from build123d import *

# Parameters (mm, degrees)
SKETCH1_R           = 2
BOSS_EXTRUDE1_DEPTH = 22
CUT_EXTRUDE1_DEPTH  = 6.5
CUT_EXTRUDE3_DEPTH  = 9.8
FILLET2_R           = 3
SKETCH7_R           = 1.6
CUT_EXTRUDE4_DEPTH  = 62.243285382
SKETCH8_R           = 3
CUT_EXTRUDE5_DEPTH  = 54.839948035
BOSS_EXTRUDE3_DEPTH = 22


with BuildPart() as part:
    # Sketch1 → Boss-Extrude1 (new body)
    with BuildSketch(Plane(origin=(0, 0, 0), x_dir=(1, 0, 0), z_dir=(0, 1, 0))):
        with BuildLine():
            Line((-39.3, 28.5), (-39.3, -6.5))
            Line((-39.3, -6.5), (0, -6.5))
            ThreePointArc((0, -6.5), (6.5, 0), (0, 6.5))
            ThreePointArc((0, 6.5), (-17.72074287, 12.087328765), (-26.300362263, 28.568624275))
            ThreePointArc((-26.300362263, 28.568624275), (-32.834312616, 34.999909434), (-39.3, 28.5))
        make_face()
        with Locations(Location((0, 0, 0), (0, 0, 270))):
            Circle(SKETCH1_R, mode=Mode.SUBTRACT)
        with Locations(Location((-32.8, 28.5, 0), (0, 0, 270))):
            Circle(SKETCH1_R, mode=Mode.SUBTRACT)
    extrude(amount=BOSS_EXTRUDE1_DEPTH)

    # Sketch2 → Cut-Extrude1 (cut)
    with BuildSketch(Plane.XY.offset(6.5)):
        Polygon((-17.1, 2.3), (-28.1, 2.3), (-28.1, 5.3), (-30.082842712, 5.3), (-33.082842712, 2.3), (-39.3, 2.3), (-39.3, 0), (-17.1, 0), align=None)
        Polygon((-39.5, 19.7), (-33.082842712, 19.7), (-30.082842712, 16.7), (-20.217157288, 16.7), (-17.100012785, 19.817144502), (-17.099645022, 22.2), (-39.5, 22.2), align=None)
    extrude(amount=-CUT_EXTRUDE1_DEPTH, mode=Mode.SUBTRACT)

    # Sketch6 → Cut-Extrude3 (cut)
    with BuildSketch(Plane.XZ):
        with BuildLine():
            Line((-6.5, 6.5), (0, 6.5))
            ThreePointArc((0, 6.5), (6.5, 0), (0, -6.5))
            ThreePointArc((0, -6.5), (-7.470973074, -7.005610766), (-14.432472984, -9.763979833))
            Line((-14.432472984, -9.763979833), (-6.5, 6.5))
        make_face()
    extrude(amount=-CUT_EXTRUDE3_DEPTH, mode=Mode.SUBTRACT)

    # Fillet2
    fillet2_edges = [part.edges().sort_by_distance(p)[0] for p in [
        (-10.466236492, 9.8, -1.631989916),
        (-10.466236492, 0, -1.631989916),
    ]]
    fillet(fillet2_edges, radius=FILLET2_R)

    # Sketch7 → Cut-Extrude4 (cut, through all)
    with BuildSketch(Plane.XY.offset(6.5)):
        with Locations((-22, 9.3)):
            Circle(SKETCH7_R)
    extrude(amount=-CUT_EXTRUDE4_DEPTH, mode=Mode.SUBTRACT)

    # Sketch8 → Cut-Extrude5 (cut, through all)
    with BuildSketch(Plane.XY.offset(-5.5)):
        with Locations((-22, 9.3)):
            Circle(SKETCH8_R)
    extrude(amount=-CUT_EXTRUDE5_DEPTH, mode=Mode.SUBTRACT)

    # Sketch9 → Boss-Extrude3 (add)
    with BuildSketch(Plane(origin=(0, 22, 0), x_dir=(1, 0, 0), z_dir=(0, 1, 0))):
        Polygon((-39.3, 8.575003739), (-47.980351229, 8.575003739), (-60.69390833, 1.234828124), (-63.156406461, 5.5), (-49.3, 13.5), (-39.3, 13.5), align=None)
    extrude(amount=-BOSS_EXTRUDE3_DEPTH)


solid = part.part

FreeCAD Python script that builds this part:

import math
import FreeCAD as App
import Part
import Sketcher

V = App.Vector
Q = App.Units.Quantity


def edges_at(feature, points):
    """Names of the edges that pass closest to the given points."""
    edges = feature.Shape.Edges
    near = lambda p: min(range(len(edges)), key=lambda i: edges[i].distToShape(Part.Vertex(*p))[0])
    return sorted({f"Edge{near(p) + 1}" for p in points})

doc = App.newDocument("Part")
body = doc.addObject("PartDesign::Body", "Body")

# Sketch on XZ plane
sketch1 = body.newObject("Sketcher::SketchObject", "Sketch")
sketch1.AttachmentSupport = (doc.getObject("XZ_Plane"), [""])
sketch1.MapMode = "FlatFace"
sketch1.addGeometry([
    Part.LineSegment(V(-39.3, -28.5, 0), V(-39.3, 6.5, 0)),  # 0
    Part.LineSegment(V(-39.3, 6.5, 0), V(0, 6.5, 0)),  # 1
    Part.ArcOfCircle(Part.Circle(V(0, 0, 0), V(0, 0, 1), 6.5), math.radians(-90), math.radians(90)),  # 2
    Part.ArcOfCircle(Part.Circle(V(-2.115869, -30.684493, 0), V(0, 0, 1), 24.276874), math.radians(85), math.radians(175)),  # 3
    Part.ArcOfCircle(Part.Circle(V(-32.8, -28.5, 0), V(0, 0, 1), 6.5), math.radians(180), math.radians(359.395084)),  # 4
    Part.Circle(V(0, 0, 0), V(0, 0, 1), 2),  # 5
    Part.Circle(V(-32.8, -28.5, 0), V(0, 0, 1), 2),  # 6
], False)
sketch1.addConstraint([
    Sketcher.Constraint("Coincident", 0, 2, 1, 1),
    Sketcher.Constraint("Tangent", 1, 2, 2, 2),
    Sketcher.Constraint("Coincident", 2, 1, 3, 1),
    Sketcher.Constraint("Coincident", 3, 2, 4, 2),
    Sketcher.Constraint("Tangent", 4, 1, 0, 1),
    Sketcher.Constraint("Vertical", 0),
    Sketcher.Constraint("Horizontal", 1),
    Sketcher.Constraint("Coincident", 2, 3, -1, 1),
    Sketcher.Constraint("Coincident", 5, 3, -1, 1),
    Sketcher.Constraint("Coincident", 6, 3, 4, 3),
    Sketcher.Constraint("Equal", 2, 4),
    Sketcher.Constraint("Equal", 5, 6),
    Sketcher.Constraint("PointOnObject", 2, 1, -2),
    Sketcher.Constraint("Diameter", 5, 4.0),
    Sketcher.Constraint("Radius", 2, 6.5),
    Sketcher.Constraint("DistanceY", 0, 1, 0, 2, 35.0),
    Sketcher.Constraint("DistanceX", 1, 1, 1, 2, 39.3),
    Sketcher.Constraint("Radius", 3, 24.276874),
    Sketcher.Constraint("DistanceX", 3, 3, -1, 1, 2.115869),
])
pad1 = body.newObject("PartDesign::Pad", "Pad")
pad1.Profile = sketch1
pad1.Length = 22
pad1.Reversed = True

# Sketch on XY plane
sketch2 = body.newObject("Sketcher::SketchObject", "Sketch001")
sketch2.AttachmentSupport = (doc.getObject("XY_Plane"), [""])
sketch2.MapMode = "FlatFace"
sketch2.AttachmentOffset = App.Placement(V(0, 0, 6.5), App.Rotation())
sketch2.addGeometry([
    Part.LineSegment(V(-17.1, 2.3, 0), V(-28.1, 2.3, 0)),  # 0
    Part.LineSegment(V(-28.1, 2.3, 0), V(-28.1, 5.3, 0)),  # 1
    Part.LineSegment(V(-28.1, 5.3, 0), V(-30.082843, 5.3, 0)),  # 2
    Part.LineSegment(V(-30.082843, 5.3, 0), V(-33.082843, 2.3, 0)),  # 3
    Part.LineSegment(V(-33.082843, 2.3, 0), V(-39.3, 2.3, 0)),  # 4
    Part.LineSegment(V(-39.3, 2.3, 0), V(-39.3, 0, 0)),  # 5
    Part.LineSegment(V(-39.3, 0, 0), V(-17.1, 0, 0)),  # 6
    Part.LineSegment(V(-17.1, 0, 0), V(-17.1, 2.3, 0)),  # 7
    Part.LineSegment(V(-39.5, 19.7, 0), V(-33.082843, 19.7, 0)),  # 8
    Part.LineSegment(V(-33.082843, 19.7, 0), V(-30.082843, 16.7, 0)),  # 9
    Part.LineSegment(V(-30.082843, 16.7, 0), V(-20.217157, 16.7, 0)),  # 10
    Part.LineSegment(V(-20.217157, 16.7, 0), V(-17.100013, 19.817145, 0)),  # 11
    Part.LineSegment(V(-17.100013, 19.817145, 0), V(-17.099645, 22.2, 0)),  # 12
    Part.LineSegment(V(-17.099645, 22.2, 0), V(-39.5, 22.2, 0)),  # 13
    Part.LineSegment(V(-39.5, 22.2, 0), V(-39.5, 19.7, 0)),  # 14
], False)
sketch2.addConstraint([
    Sketcher.Constraint("Coincident", 0, 2, 1, 1),
    Sketcher.Constraint("Coincident", 1, 2, 2, 1),
    Sketcher.Constraint("Coincident", 2, 2, 3, 1),
    Sketcher.Constraint("Coincident", 3, 2, 4, 1),
    Sketcher.Constraint("Coincident", 4, 2, 5, 1),
    Sketcher.Constraint("Coincident", 5, 2, 6, 1),
    Sketcher.Constraint("Coincident", 6, 2, 7, 1),
    Sketcher.Constraint("Coincident", 7, 2, 0, 1),
    Sketcher.Constraint("Coincident", 8, 2, 9, 1),
    Sketcher.Constraint("Coincident", 9, 2, 10, 1),
    Sketcher.Constraint("Coincident", 10, 2, 11, 1),
    Sketcher.Constraint("Coincident", 11, 2, 12, 1),
    Sketcher.Constraint("Coincident", 12, 2, 13, 1),
    Sketcher.Constraint("Coincident", 13, 2, 14, 1),
    Sketcher.Constraint("Coincident", 14, 2, 8, 1),
    Sketcher.Constraint("Horizontal", 0),
    Sketcher.Constraint("Vertical", 1),
    Sketcher.Constraint("Horizontal", 2),
    Sketcher.Constraint("Horizontal", 4),
    Sketcher.Constraint("Vertical", 5),
    Sketcher.Constraint("Horizontal", 6),
    Sketcher.Constraint("Vertical", 7),
    Sketcher.Constraint("Horizontal", 8),
    Sketcher.Constraint("Horizontal", 10),
    Sketcher.Constraint("Horizontal", 13),
    Sketcher.Constraint("Vertical", 14),
    Sketcher.Constraint("PointOnObject", 5, 2, -1),
    Sketcher.Constraint("Perpendicular", 3, 9),
    Sketcher.Constraint("Perpendicular", 9, 11),
    Sketcher.Constraint("Horizontal", 0, 2, 3, 2),
    Sketcher.Constraint("Vertical", 3, 2, 8, 2),
    Sketcher.Constraint("Vertical", 2, 2, 9, 2),
    Sketcher.Constraint("Equal", 3, 9),
    Sketcher.Constraint("DistanceX", 0, 2, 0, 1, 11.0),
    Sketcher.Constraint("DistanceY", 1, 1, 1, 2, 3.0),
    Sketcher.Constraint("DistanceX", 6, 1, 6, 2, 22.2),
    Sketcher.Constraint("DistanceY", 5, 2, 5, 1, 2.3),
    Sketcher.Constraint("DistanceY", 14, 2, 14, 1, 2.5),
    Sketcher.Constraint("DistanceX", 0, 2, -1, 1, 28.1),
    Sketcher.Constraint("DistanceY", -1, 1, 8, 2, 19.7),
    Sketcher.Constraint("DistanceX", 13, 2, -1, 1, 39.5),
    Sketcher.Constraint("Distance", 11, 4.408308),
    Sketcher.Constraint("DistanceX", 2, 2, 2, 1, 1.982843),
    Sketcher.Constraint("DistanceX", 10, 1, 10, 2, 9.865685),
    Sketcher.Constraint("DistanceX", 13, 2, 13, 1, 22.400355),
])
pocket1 = body.newObject("PartDesign::Pocket", "Pocket")
pocket1.Profile = sketch2
pocket1.Length = 6.5

# Sketch on XZ plane
sketch3 = body.newObject("Sketcher::SketchObject", "Sketch002")
sketch3.AttachmentSupport = (doc.getObject("XZ_Plane"), [""])
sketch3.MapMode = "FlatFace"
sketch3.addGeometry([
    Part.LineSegment(V(0, 6.5, 0), V(-6.5, 6.5, 0)),
    Part.LineSegment(V(-6.5, 6.5, 0), V(-14.432473, -9.76398, 0)),
    Part.ArcOfCircle(Part.Circle(V(-2.115869, -30.684493, 0), V(0, 0, 1), 24.276874), math.radians(85), math.radians(120.486741)),
    Part.ArcOfCircle(Part.Circle(V(0, 0, 0), V(0, 0, 1), 6.5), math.radians(-90), math.radians(90)),
], False)
sketch3.addConstraint([
    Sketcher.Constraint("Coincident", 0, 2, 1, 1),
    Sketcher.Constraint("Coincident", 1, 2, 2, 2),
    Sketcher.Constraint("Coincident", 2, 1, 3, 1),
    Sketcher.Constraint("Tangent", 3, 2, 0, 1),
    Sketcher.Constraint("Horizontal", 0),
    Sketcher.Constraint("Coincident", 3, 3, -1, 1),
    Sketcher.Constraint("PointOnObject", 2, 1, -2),
    Sketcher.Constraint("Radius", 3, 6.5),
    Sketcher.Constraint("Angle", 1, Q("-116 deg")),
    Sketcher.Constraint("DistanceX", 0, 2, 0, 1, 6.5),
    Sketcher.Constraint("Radius", 2, 24.276874),
    Sketcher.Constraint("DistanceX", 2, 3, -1, 1, 2.115869),
])
pocket2 = body.newObject("PartDesign::Pocket", "Pocket001")
pocket2.Profile = sketch3
pocket2.Length = 9.8
doc.recompute()

fillet = body.newObject("PartDesign::Fillet", "Fillet")
fillet.Base = (pocket2, edges_at(pocket2, [(-10.466, 9.8, -1.632), (-10.466, 0, -1.632)]))
fillet.Radius = 3

# Sketch on XY plane
sketch4 = body.newObject("Sketcher::SketchObject", "Sketch003")
sketch4.AttachmentSupport = (doc.getObject("XY_Plane"), [""])
sketch4.MapMode = "FlatFace"
sketch4.AttachmentOffset = App.Placement(V(0, 0, 6.5), App.Rotation())
sketch4.addGeometry(Part.Circle(V(-22, 9.3, 0), V(0, 0, 1), 1.6), False)
sketch4.addConstraint([
    Sketcher.Constraint("Diameter", 0, 3.2),
    Sketcher.Constraint("DistanceX", 0, 3, -1, 1, 22.0),
    Sketcher.Constraint("DistanceY", -1, 1, 0, 3, 9.3),
])
pocket3 = body.newObject("PartDesign::Pocket", "Pocket002")
pocket3.Profile = sketch4
pocket3.Type = "ThroughAll"

# Sketch on XY plane
sketch5 = body.newObject("Sketcher::SketchObject", "Sketch004")
sketch5.AttachmentSupport = (doc.getObject("XY_Plane"), [""])
sketch5.MapMode = "FlatFace"
sketch5.AttachmentOffset = App.Placement(V(0, 0, -5.5), App.Rotation())
sketch5.addGeometry(Part.Circle(V(-22, 9.3, 0), V(0, 0, 1), 3), False)
sketch5.addConstraint([
    Sketcher.Constraint("Diameter", 0, 6.0),
    Sketcher.Constraint("DistanceX", 0, 3, -1, 1, 22.0),
    Sketcher.Constraint("DistanceY", -1, 1, 0, 3, 9.3),
])
pocket4 = body.newObject("PartDesign::Pocket", "Pocket003")
pocket4.Profile = sketch5
pocket4.Type = "ThroughAll"

# Sketch on XZ plane
sketch6 = body.newObject("Sketcher::SketchObject", "Sketch005")
sketch6.AttachmentSupport = (doc.getObject("XZ_Plane"), [""])
sketch6.MapMode = "FlatFace"
sketch6.AttachmentOffset = App.Placement(V(0, 0, -22), App.Rotation())
sketch6.addGeometry([
    Part.LineSegment(V(-47.980351, -8.575004, 0), V(-39.3, -8.575004, 0)),  # 0
    Part.LineSegment(V(-39.3, -8.575004, 0), V(-39.3, -13.5, 0)),  # 1
    Part.LineSegment(V(-39.3, -13.5, 0), V(-49.3, -13.5, 0)),  # 2
    Part.LineSegment(V(-49.3, -13.5, 0), V(-63.156406, -5.5, 0)),  # 3
    Part.LineSegment(V(-63.156406, -5.5, 0), V(-60.693908, -1.234828, 0)),  # 4
    Part.LineSegment(V(-60.693908, -1.234828, 0), V(-47.980351, -8.575004, 0)),  # 5
], False)
sketch6.addConstraint([
    Sketcher.Constraint("Coincident", 0, 2, 1, 1),
    Sketcher.Constraint("Coincident", 1, 2, 2, 1),
    Sketcher.Constraint("Coincident", 2, 2, 3, 1),
    Sketcher.Constraint("Coincident", 3, 2, 4, 1),
    Sketcher.Constraint("Coincident", 4, 2, 5, 1),
    Sketcher.Constraint("Coincident", 5, 2, 0, 1),
    Sketcher.Constraint("Horizontal", 0),
    Sketcher.Constraint("Vertical", 1),
    Sketcher.Constraint("Horizontal", 2),
    Sketcher.Constraint("Perpendicular", 3, 4),
    Sketcher.Constraint("Perpendicular", 4, 5),
    Sketcher.Constraint("DistanceX", 2, 2, 2, 1, 10.0),
    Sketcher.Constraint("Angle", 3, Q("150 deg")),
    Sketcher.Constraint("Distance", 3, 16.0),
    Sketcher.Constraint("DistanceX", 0, 2, -1, 1, 39.3),
    Sketcher.Constraint("DistanceY", 1, 2, -1, 1, 13.5),
    Sketcher.Constraint("DistanceX", 0, 1, 0, 2, 8.680351),
    Sketcher.Constraint("DistanceX", 3, 2, 4, 2, 2.462498),
])
pad2 = body.newObject("PartDesign::Pad", "Pad001")
pad2.Profile = sketch6
pad2.Length = 22

doc.recompute()
